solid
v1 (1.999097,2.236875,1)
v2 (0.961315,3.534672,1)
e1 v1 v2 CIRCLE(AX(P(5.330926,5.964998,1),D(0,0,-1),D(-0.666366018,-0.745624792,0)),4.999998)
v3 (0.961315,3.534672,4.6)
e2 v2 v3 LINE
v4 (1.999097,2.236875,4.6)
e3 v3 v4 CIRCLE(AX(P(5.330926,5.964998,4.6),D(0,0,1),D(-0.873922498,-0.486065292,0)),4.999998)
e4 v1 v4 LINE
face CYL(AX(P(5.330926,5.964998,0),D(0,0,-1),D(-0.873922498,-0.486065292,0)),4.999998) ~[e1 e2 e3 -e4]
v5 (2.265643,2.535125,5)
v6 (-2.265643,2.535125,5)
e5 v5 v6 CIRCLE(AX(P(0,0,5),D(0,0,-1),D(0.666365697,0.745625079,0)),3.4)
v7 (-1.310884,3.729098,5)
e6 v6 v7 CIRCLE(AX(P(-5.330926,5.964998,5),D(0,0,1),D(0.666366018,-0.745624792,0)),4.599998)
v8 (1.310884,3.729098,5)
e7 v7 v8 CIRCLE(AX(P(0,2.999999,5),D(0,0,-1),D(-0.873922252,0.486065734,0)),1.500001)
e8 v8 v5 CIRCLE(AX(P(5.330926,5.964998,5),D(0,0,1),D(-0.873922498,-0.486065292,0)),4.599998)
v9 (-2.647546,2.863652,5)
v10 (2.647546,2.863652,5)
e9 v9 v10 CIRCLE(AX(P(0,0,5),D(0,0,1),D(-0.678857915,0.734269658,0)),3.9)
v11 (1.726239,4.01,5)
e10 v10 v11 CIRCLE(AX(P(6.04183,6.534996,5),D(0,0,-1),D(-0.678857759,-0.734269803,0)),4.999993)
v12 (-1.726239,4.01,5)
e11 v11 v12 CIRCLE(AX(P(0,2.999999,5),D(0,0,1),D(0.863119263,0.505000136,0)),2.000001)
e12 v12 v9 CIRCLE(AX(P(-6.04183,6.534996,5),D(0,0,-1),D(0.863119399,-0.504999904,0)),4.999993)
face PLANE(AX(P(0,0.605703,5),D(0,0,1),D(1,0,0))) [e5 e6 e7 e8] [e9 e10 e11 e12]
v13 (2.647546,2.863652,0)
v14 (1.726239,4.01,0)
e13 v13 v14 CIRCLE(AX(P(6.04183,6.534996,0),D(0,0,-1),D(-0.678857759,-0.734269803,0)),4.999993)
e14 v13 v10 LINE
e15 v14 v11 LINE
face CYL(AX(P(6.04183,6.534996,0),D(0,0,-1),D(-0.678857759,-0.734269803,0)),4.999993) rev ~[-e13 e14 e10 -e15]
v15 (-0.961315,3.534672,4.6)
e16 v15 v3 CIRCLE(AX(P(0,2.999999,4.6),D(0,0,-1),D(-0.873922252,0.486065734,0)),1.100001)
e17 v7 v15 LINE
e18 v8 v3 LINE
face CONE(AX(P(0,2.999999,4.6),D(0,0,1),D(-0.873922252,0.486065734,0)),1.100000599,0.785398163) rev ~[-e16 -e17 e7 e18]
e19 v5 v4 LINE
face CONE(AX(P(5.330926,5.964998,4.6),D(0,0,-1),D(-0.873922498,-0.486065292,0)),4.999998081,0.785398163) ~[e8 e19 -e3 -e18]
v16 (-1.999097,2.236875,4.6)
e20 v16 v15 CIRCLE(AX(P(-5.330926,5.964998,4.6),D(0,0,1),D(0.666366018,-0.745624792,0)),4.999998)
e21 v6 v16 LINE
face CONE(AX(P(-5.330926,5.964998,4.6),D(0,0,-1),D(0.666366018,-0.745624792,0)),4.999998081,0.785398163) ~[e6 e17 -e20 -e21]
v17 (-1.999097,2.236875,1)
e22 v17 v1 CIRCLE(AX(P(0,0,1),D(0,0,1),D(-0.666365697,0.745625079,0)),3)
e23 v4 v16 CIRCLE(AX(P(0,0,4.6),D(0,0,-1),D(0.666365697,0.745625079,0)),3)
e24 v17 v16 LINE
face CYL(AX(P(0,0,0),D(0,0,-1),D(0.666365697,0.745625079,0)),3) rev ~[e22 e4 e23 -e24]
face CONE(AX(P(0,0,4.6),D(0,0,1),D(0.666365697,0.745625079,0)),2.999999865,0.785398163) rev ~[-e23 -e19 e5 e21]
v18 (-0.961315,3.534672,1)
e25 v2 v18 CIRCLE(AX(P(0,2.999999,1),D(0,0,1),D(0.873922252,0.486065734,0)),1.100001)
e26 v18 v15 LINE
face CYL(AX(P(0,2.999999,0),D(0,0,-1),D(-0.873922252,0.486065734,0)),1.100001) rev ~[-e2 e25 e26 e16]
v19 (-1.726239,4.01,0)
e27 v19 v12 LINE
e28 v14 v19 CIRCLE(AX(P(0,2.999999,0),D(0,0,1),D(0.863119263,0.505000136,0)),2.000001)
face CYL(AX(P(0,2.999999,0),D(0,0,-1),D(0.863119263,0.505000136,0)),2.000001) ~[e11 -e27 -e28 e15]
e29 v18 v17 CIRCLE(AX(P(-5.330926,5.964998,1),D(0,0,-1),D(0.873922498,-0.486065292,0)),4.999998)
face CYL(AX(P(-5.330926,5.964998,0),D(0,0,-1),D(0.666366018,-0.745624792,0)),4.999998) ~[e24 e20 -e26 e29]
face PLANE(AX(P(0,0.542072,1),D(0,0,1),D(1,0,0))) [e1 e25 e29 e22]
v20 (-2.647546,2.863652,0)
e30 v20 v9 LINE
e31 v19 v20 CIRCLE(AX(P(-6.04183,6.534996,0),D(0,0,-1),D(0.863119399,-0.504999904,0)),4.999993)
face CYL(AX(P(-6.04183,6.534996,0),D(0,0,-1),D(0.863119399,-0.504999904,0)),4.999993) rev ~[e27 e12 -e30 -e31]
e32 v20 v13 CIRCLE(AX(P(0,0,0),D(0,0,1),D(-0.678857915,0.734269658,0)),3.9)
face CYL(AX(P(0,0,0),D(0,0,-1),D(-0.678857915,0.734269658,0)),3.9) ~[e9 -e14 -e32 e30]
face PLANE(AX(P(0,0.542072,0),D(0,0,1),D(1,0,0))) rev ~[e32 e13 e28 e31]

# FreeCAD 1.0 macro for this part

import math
import FreeCAD as App
import Part
import Sketcher


def edges_at(feature, points):
    """Names of the edges that pass closest to the given points."""
    edges = feature.Shape.Edges
    near = lambda p: min(range(len(edges)), key=lambda i: edges[i].distToShape(Part.Vertex(*p))[0])
    return sorted({f"Edge{near(p) + 1}" for p in points})

doc = App.newDocument("Part")
body = doc.addObject("PartDesign::Body", "Body")

# Sketch on XY plane
sketch1 = body.newObject("Sketcher::SketchObject", "Sketch")
sketch1.AttachmentSupport = (doc.getObject("XY_Plane"), [""])
sketch1.MapMode = "FlatFace"
sketch1.addGeometry(Part.ArcOfCircle(Part.Circle(App.Vector(-6.04183, 6.534996, 0), App.Vector(0, 0, 1), 4.999993), math.radians(-47.245551), math.radians(-30.331346)), False)
sketch1.addGeometry(Part.ArcOfCircle(Part.Circle(App.Vector(0, 0, 0), App.Vector(0, 0, 1), 3.9), math.radians(132.754461), math.radians(407.245539)), False)
sketch1.addGeometry(Part.ArcOfCircle(Part.Circle(App.Vector(6.04183, 6.534996, 0), App.Vector(0, 0, 1), 4.999993), math.radians(-149.668654), math.radians(-132.754449)), False)
sketch1.addGeometry(Part.ArcOfCircle(Part.Circle(App.Vector(0, 2.999999, 0), App.Vector(0, 0, 1), 2.000001), math.radians(30.331361), math.radians(149.668639)), False)
sketch1.addGeometry(Part.ArcOfCircle(Part.Circle(App.Vector(5.330926, 5.964998, 0), App.Vector(0, 0, 1), 4.999998), math.radians(-150.917709), math.radians(-131.787208)), False)
sketch1.addGeometry(Part.ArcOfCircle(Part.Circle(App.Vector(0, 0, 0), App.Vector(0, 0, 1), 3), math.radians(131.787183), math.radians(408.212817)), False)
sketch1.addGeometry(Part.ArcOfCircle(Part.Circle(App.Vector(-5.330926, 5.964998, 0), App.Vector(0, 0, 1), 4.999998), math.radians(-48.212792), math.radians(-29.082291)), False)
sketch1.addGeometry(Part.ArcOfCircle(Part.Circle(App.Vector(0, 2.999999, 0), App.Vector(0, 0, 1), 1.100001), math.radians(29.08232), math.radians(150.91768)), False)
sketch1.addConstraint(Sketcher.Constraint("Coincident", 0, 1, 1, 1))
sketch1.addConstraint(Sketcher.Constraint("Coincident", 1, 2, 2, 2))
sketch1.addConstraint(Sketcher.Constraint("Coincident", 2, 1, 3, 1))
sketch1.addConstraint(Sketcher.Constraint("Coincident", 3, 2, 0, 2))
sketch1.addConstraint(Sketcher.Constraint("Coincident", 4, 2, 5, 2))
sketch1.addConstraint(Sketcher.Constraint("Coincident", 5, 1, 6, 1))
sketch1.addConstraint(Sketcher.Constraint("Coincident", 6, 2, 7, 2))
sketch1.addConstraint(Sketcher.Constraint("Coincident", 7, 1, 4, 1))
sketch1.addConstraint(Sketcher.Constraint("Coincident", 1, 3, -1, 1))
sketch1.addConstraint(Sketcher.Constraint("Coincident", 5, 3, -1, 1))
sketch1.addConstraint(Sketcher.Constraint("Coincident", 7, 3, 3, 3))
sketch1.addConstraint(Sketcher.Constraint("PointOnObject", 3, 3, -2))
sketch1.addConstraint(Sketcher.Constraint("Radius", 3, 2.000001))
sketch1.addConstraint(Sketcher.Constraint("Radius", 4, 4.999998))
sketch1.addConstraint(Sketcher.Constraint("Radius", 5, 3.0))
sketch1.addConstraint(Sketcher.Constraint("Radius", 6, 4.999998))
sketch1.addConstraint(Sketcher.Constraint("Radius", 1, 3.9))
sketch1.addConstraint(Sketcher.Constraint("Radius", 7, 1.100001))
sketch1.addConstraint(Sketcher.Constraint("DistanceY", -1, 1, 3, 3, 2.999999))
sketch1.addConstraint(Sketcher.Constraint("DistanceY", -1, 1, 2, 1, 4.01))
sketch1.addConstraint(Sketcher.Constraint("DistanceY", -1, 1, 3, 2, 4.01))
sketch1.addConstraint(Sketcher.Constraint("DistanceY", 4, 3, 2, 3, 0.569999))
sketch1.addConstraint(Sketcher.Constraint("DistanceY", 4, 3, 0, 3, 0.569999))
sketch1.addConstraint(Sketcher.Constraint("DistanceY", -1, 1, 1, 2, 2.863652))
sketch1.addConstraint(Sketcher.Constraint("DistanceY", 1, 3, 0, 1, 2.863652))
sketch1.addConstraint(Sketcher.Constraint("DistanceX", 4, 2, 1, 2, 0.648449))
sketch1.addConstraint(Sketcher.Constraint("DistanceX", 0, 1, 5, 1, 0.648449))
sketch1.addConstraint(Sketcher.Constraint("DistanceX", 5, 1, 6, 2, 1.037782))
sketch1.addConstraint(Sketcher.Constraint("DistanceY", 7, 1, 2, 1, 0.475328))
pad1 = body.newObject("PartDesign::Pad", "Pad")
pad1.Profile = sketch1
pad1.Length = 5

# Sketch on XY plane
sketch2 = body.newObject("Sketcher::SketchObject", "Sketch001")
sketch2.AttachmentSupport = (doc.getObject("XY_Plane"), [""])
sketch2.MapMode = "FlatFace"
sketch2.addGeometry(Part.ArcOfCircle(Part.Circle(App.Vector(-5.3, 6, 0), App.Vector(0, 0, 1), 5), math.radians(-48.21), math.radians(-29.08)), False)
sketch2.addGeometry(Part.ArcOfCircle(Part.Circle(App.Vector(0, 0, 0), App.Vector(0, 0, 1), 3), math.radians(132), math.radians(408)), False)
sketch2.addGeometry(Part.ArcOfCircle(Part.Circle(App.Vector(5.3, 6, 0), App.Vector(0, 0, 1), 5), math.radians(-150.92), math.radians(-131.79)), False)
sketch2.addGeometry(Part.ArcOfCircle(Part.Circle(App.Vector(0, 3, 0), App.Vector(0, 0, 1), 1.1), math.radians(29), math.radians(151)), False)
sketch2.addConstraint(Sketcher.Constraint("Tangent", 0, 1, 1, 1))
sketch2.addConstraint(Sketcher.Constraint("Tangent", 1, 2, 2, 2))
sketch2.addConstraint(Sketcher.Constraint("Tangent", 2, 1, 3, 1))
sketch2.addConstraint(Sketcher.Constraint("Tangent", 3, 2, 0, 2))
sketch2.addConstraint(Sketcher.Constraint("Coincident", 1, 3, -1, 1))
sketch2.addConstraint(Sketcher.Constraint("Equal", 0, 2))
sketch2.addConstraint(Sketcher.Constraint("PointOnObject", 3, 3, -2))
sketch2.addConstraint(Sketcher.Constraint("Radius", 0, 4.999998))
sketch2.addConstraint(Sketcher.Constraint("Radius", 1, 3.0))
sketch2.addConstraint(Sketcher.Constraint("Radius", 3, 1.100001))
sketch2.addConstraint(Sketcher.Constraint("DistanceY", -1, 1, 3, 3, 2.999999))
pad2 = body.newObject("PartDesign::Pad", "Pad001")
pad2.Profile = sketch2
pad2.Length = 1
doc.recompute()

chamfer = body.newObject("PartDesign::Chamfer", "Chamfer")
chamfer.Base = (pad2, edges_at(pad2, [(0, -3, 5)]))
chamfer.Size = 0.4

doc.recompute()
